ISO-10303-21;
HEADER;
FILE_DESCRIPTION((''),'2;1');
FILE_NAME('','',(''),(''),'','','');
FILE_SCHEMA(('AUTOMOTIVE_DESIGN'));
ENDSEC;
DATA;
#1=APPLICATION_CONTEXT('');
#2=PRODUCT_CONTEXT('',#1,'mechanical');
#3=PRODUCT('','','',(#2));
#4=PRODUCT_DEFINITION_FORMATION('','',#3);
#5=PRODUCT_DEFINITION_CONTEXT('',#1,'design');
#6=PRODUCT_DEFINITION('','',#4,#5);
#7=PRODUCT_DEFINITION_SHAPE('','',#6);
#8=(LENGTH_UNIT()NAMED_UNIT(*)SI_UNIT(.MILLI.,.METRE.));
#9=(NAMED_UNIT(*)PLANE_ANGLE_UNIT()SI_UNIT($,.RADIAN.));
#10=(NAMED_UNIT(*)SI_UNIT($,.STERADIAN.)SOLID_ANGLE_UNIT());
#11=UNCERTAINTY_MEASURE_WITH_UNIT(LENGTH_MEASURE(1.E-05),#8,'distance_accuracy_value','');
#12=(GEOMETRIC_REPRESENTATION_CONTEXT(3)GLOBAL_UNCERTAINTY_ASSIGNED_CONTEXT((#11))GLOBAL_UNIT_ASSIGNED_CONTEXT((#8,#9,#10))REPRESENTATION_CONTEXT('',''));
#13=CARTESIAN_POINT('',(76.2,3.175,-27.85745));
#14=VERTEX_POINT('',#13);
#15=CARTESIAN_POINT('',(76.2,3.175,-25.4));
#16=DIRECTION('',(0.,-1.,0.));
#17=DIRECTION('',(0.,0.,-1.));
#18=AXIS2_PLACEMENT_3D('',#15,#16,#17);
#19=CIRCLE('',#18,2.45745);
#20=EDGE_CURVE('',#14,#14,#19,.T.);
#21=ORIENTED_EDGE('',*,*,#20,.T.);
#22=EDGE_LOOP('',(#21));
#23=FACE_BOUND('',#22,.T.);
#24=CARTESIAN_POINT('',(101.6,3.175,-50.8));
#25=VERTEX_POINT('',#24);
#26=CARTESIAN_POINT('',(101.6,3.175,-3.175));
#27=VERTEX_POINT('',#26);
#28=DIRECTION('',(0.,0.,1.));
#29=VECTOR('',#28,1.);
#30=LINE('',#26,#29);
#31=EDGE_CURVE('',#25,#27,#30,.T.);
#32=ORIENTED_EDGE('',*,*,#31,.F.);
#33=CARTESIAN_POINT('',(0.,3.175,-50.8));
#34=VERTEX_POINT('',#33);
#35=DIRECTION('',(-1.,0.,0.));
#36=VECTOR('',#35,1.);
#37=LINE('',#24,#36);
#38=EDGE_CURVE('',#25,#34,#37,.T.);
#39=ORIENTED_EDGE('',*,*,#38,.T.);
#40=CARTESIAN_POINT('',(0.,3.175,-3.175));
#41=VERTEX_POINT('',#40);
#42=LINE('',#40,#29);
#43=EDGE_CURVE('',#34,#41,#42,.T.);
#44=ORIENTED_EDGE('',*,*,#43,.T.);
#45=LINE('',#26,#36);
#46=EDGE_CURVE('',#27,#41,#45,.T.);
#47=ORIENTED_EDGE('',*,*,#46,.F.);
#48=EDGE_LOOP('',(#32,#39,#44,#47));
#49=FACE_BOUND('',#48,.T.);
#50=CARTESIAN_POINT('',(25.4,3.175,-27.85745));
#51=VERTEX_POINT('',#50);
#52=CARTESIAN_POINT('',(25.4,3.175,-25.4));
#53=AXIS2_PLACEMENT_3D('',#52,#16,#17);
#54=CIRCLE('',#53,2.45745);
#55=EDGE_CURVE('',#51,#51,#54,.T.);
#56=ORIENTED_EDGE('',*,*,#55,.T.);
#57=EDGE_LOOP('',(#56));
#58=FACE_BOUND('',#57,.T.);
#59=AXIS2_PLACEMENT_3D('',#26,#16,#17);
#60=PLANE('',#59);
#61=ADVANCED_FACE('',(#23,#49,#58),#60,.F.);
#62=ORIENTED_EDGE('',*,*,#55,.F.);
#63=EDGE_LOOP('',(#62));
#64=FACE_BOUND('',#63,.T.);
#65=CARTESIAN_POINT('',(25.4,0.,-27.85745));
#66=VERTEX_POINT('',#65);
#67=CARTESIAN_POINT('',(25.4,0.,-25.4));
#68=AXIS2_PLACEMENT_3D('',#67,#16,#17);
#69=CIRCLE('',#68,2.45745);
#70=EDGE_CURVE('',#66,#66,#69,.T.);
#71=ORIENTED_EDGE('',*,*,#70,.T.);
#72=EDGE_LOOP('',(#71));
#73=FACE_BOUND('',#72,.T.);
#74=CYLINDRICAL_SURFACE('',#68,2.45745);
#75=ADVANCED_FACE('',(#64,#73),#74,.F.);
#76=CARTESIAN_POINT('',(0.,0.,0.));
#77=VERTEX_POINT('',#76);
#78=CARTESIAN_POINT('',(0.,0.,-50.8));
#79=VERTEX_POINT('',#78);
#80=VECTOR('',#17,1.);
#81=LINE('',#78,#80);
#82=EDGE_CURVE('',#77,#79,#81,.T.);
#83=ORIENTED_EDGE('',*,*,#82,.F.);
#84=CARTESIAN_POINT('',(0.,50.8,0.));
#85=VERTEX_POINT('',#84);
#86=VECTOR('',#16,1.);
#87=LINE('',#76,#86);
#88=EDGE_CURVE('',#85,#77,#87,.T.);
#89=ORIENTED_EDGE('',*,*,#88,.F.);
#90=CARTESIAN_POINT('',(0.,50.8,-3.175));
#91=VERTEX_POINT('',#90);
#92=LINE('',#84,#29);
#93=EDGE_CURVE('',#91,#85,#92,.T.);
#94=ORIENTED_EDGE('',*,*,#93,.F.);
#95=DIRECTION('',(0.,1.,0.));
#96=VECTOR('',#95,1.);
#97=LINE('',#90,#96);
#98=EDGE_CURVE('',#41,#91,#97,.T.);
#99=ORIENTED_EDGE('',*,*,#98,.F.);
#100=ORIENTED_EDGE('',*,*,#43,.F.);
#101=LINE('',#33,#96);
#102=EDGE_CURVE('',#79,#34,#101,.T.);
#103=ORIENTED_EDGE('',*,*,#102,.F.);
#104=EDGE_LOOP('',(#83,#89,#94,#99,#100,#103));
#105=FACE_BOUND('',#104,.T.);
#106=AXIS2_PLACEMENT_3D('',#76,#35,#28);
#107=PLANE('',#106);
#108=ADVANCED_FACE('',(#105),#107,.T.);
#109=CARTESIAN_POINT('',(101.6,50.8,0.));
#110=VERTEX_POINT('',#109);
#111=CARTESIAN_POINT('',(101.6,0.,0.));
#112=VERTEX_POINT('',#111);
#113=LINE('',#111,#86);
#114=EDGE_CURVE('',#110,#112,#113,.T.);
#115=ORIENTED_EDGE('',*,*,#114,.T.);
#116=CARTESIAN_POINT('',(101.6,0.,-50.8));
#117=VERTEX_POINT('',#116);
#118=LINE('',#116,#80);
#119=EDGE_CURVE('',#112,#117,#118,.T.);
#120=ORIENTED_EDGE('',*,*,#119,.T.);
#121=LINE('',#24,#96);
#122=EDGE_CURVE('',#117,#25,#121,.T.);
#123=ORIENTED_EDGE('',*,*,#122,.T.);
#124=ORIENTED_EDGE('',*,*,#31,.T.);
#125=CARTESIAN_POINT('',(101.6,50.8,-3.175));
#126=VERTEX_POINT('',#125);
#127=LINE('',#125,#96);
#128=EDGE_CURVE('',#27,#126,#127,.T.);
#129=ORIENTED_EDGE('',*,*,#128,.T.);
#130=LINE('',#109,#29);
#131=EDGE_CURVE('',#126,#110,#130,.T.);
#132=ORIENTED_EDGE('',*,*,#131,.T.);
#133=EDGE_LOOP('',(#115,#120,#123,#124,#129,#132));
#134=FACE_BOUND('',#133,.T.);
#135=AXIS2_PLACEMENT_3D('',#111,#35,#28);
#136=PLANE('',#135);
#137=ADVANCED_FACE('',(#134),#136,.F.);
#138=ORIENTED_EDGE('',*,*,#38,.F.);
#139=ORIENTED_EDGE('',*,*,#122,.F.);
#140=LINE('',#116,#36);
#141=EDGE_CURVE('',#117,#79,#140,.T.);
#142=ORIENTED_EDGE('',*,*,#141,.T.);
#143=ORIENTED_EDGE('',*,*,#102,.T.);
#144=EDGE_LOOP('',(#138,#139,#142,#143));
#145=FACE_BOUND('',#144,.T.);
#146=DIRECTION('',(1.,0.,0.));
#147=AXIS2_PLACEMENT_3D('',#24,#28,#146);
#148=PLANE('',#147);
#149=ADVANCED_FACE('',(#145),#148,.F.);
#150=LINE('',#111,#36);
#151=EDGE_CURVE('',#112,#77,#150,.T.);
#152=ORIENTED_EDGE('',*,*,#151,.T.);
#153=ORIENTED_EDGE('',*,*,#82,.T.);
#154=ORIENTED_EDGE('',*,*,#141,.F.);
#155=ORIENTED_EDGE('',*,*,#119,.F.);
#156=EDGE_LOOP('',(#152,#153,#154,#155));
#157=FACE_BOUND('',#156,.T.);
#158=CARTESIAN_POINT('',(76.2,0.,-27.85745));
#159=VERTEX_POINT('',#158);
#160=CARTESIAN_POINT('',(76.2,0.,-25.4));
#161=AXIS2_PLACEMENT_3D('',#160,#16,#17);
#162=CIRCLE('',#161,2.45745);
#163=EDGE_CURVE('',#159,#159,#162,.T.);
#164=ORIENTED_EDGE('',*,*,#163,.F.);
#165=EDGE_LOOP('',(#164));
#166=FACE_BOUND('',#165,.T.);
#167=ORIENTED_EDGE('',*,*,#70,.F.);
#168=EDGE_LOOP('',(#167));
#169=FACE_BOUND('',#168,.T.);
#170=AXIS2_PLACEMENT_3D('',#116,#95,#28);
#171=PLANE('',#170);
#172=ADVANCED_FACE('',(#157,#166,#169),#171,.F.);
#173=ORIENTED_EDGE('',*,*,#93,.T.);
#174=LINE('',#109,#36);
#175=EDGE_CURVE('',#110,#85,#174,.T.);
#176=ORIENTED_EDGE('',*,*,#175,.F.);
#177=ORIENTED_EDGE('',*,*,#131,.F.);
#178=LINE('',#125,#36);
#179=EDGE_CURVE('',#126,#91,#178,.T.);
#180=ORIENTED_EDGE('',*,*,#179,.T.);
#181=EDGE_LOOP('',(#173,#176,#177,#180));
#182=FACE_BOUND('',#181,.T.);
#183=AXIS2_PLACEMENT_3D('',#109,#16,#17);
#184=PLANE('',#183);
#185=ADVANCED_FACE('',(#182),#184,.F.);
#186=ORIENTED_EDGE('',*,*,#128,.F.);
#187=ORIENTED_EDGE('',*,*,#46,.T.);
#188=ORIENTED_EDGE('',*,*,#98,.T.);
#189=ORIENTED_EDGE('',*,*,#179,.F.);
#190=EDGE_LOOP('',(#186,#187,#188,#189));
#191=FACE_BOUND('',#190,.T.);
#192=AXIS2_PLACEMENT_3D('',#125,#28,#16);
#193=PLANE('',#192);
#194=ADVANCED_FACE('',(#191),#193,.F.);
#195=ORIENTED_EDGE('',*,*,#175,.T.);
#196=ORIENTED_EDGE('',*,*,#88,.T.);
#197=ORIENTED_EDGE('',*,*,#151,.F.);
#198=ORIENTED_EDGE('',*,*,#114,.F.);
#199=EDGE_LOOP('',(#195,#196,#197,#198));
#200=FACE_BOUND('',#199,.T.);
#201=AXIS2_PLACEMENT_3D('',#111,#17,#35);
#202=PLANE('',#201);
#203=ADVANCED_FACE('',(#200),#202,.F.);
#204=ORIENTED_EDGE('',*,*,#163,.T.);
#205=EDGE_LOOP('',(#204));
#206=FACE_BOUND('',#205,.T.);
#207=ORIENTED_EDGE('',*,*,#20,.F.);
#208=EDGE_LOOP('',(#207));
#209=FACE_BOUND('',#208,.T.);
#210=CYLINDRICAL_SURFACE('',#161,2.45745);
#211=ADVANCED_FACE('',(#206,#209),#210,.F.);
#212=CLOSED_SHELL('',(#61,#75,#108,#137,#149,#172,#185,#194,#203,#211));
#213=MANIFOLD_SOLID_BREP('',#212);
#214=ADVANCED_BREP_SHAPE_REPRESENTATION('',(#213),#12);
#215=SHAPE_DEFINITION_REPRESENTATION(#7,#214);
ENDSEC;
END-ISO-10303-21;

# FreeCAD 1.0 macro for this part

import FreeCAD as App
import Part
import Sketcher
from FreeCAD import Vector
Q = App.Units.Quantity

doc = App.newDocument("Part")
body = doc.addObject("PartDesign::Body", "Body")

# Sketch on YZ plane
sketch1 = doc.addObject("Sketcher::SketchObject", "Sketch")
body.addObject(sketch1)
sketch1.AttachmentSupport = (doc.YZ_Plane, [""])
sketch1.MapMode = "FlatFace"
sketch1.addGeometry([
    Part.LineSegment(Vector(50.8, 0, 0), Vector(0, 0, 0)),  # 0
    Part.LineSegment(Vector(0, 0, 0), Vector(0, -50.8, 0)),  # 1
    Part.LineSegment(Vector(0, -50.8, 0), Vector(3.2, -50.8, 0)),  # 2
    Part.LineSegment(Vector(3.2, -50.8, 0), Vector(3.2, -3.2, 0)),  # 3
    Part.LineSegment(Vector(3.2, -3.2, 0), Vector(50.8, -3.2, 0)),  # 4
    Part.LineSegment(Vector(50.8, -3.2, 0), Vector(50.8, 0, 0)),  # 5
], False)
sketch1.addConstraint([
    Sketcher.Constraint("Coincident", 0, 2, 1, 1),
    Sketcher.Constraint("Coincident", 1, 2, 2, 1),
    Sketcher.Constraint("Coincident", 2, 2, 3, 1),
    Sketcher.Constraint("Coincident", 3, 2, 4, 1),
    Sketcher.Constraint("Coincident", 4, 2, 5, 1),
    Sketcher.Constraint("Coincident", 5, 2, 0, 1),
    Sketcher.Constraint("Horizontal", 0),
    Sketcher.Constraint("Vertical", 1),
    Sketcher.Constraint("Horizontal", 2),
    Sketcher.Constraint("Vertical", 3),
    Sketcher.Constraint("Horizontal", 4),
    Sketcher.Constraint("Vertical", 5),
    Sketcher.Constraint("Coincident", 0, 2, -1, 1),
    Sketcher.Constraint("Equal", 0, 1),
    Sketcher.Constraint("Equal", 4, 3),
    Sketcher.Constraint("DistanceX", 0, 2, 0, 1, Q("2 in")),
    Sketcher.Constraint("DistanceX", 2, 1, 2, 2, Q("0.125 in")),
])
pad1 = doc.addObject("PartDesign::Pad", "Pad")
body.addObject(pad1)
pad1.Profile = sketch1
pad1.Length = Q("4 in")

# Sketch on XZ plane
sketch2 = doc.addObject("Sketcher::SketchObject", "Sketch001")
body.addObject(sketch2)
sketch2.AttachmentSupport = (doc.XZ_Plane, [""])
sketch2.MapMode = "FlatFace"
sketch2.addGeometry([
    Part.Circle(Vector(76.2, -25.4, 0), Vector(0, 0, 1), 2.5),
    Part.Circle(Vector(25.4, -25.4, 0), Vector(0, 0, 1), 2.5),
], False)
sketch2.addConstraint([
    Sketcher.Constraint("Equal", 0, 1),
    Sketcher.Constraint("Horizontal", 0, 3, 1, 3),
    Sketcher.Constraint("DistanceX", -1, 1, 0, 3, Q("3 in")),
    Sketcher.Constraint("DistanceY", 0, 3, -1, 1, Q("1 in")),
    Sketcher.Constraint("DistanceX", -1, 1, 1, 3, Q("1 in")),
    Sketcher.Constraint("Diameter", 0, Q("0.1935 in")),
])
doc.recompute()
hole = doc.addObject("PartDesign::Hole", "Hole")
body.addObject(hole)
hole.Profile = sketch2
hole.ThreadType = "None"
hole.Diameter = Q("0.1935 in")
hole.DepthType = "ThroughAll"

doc.recompute()
